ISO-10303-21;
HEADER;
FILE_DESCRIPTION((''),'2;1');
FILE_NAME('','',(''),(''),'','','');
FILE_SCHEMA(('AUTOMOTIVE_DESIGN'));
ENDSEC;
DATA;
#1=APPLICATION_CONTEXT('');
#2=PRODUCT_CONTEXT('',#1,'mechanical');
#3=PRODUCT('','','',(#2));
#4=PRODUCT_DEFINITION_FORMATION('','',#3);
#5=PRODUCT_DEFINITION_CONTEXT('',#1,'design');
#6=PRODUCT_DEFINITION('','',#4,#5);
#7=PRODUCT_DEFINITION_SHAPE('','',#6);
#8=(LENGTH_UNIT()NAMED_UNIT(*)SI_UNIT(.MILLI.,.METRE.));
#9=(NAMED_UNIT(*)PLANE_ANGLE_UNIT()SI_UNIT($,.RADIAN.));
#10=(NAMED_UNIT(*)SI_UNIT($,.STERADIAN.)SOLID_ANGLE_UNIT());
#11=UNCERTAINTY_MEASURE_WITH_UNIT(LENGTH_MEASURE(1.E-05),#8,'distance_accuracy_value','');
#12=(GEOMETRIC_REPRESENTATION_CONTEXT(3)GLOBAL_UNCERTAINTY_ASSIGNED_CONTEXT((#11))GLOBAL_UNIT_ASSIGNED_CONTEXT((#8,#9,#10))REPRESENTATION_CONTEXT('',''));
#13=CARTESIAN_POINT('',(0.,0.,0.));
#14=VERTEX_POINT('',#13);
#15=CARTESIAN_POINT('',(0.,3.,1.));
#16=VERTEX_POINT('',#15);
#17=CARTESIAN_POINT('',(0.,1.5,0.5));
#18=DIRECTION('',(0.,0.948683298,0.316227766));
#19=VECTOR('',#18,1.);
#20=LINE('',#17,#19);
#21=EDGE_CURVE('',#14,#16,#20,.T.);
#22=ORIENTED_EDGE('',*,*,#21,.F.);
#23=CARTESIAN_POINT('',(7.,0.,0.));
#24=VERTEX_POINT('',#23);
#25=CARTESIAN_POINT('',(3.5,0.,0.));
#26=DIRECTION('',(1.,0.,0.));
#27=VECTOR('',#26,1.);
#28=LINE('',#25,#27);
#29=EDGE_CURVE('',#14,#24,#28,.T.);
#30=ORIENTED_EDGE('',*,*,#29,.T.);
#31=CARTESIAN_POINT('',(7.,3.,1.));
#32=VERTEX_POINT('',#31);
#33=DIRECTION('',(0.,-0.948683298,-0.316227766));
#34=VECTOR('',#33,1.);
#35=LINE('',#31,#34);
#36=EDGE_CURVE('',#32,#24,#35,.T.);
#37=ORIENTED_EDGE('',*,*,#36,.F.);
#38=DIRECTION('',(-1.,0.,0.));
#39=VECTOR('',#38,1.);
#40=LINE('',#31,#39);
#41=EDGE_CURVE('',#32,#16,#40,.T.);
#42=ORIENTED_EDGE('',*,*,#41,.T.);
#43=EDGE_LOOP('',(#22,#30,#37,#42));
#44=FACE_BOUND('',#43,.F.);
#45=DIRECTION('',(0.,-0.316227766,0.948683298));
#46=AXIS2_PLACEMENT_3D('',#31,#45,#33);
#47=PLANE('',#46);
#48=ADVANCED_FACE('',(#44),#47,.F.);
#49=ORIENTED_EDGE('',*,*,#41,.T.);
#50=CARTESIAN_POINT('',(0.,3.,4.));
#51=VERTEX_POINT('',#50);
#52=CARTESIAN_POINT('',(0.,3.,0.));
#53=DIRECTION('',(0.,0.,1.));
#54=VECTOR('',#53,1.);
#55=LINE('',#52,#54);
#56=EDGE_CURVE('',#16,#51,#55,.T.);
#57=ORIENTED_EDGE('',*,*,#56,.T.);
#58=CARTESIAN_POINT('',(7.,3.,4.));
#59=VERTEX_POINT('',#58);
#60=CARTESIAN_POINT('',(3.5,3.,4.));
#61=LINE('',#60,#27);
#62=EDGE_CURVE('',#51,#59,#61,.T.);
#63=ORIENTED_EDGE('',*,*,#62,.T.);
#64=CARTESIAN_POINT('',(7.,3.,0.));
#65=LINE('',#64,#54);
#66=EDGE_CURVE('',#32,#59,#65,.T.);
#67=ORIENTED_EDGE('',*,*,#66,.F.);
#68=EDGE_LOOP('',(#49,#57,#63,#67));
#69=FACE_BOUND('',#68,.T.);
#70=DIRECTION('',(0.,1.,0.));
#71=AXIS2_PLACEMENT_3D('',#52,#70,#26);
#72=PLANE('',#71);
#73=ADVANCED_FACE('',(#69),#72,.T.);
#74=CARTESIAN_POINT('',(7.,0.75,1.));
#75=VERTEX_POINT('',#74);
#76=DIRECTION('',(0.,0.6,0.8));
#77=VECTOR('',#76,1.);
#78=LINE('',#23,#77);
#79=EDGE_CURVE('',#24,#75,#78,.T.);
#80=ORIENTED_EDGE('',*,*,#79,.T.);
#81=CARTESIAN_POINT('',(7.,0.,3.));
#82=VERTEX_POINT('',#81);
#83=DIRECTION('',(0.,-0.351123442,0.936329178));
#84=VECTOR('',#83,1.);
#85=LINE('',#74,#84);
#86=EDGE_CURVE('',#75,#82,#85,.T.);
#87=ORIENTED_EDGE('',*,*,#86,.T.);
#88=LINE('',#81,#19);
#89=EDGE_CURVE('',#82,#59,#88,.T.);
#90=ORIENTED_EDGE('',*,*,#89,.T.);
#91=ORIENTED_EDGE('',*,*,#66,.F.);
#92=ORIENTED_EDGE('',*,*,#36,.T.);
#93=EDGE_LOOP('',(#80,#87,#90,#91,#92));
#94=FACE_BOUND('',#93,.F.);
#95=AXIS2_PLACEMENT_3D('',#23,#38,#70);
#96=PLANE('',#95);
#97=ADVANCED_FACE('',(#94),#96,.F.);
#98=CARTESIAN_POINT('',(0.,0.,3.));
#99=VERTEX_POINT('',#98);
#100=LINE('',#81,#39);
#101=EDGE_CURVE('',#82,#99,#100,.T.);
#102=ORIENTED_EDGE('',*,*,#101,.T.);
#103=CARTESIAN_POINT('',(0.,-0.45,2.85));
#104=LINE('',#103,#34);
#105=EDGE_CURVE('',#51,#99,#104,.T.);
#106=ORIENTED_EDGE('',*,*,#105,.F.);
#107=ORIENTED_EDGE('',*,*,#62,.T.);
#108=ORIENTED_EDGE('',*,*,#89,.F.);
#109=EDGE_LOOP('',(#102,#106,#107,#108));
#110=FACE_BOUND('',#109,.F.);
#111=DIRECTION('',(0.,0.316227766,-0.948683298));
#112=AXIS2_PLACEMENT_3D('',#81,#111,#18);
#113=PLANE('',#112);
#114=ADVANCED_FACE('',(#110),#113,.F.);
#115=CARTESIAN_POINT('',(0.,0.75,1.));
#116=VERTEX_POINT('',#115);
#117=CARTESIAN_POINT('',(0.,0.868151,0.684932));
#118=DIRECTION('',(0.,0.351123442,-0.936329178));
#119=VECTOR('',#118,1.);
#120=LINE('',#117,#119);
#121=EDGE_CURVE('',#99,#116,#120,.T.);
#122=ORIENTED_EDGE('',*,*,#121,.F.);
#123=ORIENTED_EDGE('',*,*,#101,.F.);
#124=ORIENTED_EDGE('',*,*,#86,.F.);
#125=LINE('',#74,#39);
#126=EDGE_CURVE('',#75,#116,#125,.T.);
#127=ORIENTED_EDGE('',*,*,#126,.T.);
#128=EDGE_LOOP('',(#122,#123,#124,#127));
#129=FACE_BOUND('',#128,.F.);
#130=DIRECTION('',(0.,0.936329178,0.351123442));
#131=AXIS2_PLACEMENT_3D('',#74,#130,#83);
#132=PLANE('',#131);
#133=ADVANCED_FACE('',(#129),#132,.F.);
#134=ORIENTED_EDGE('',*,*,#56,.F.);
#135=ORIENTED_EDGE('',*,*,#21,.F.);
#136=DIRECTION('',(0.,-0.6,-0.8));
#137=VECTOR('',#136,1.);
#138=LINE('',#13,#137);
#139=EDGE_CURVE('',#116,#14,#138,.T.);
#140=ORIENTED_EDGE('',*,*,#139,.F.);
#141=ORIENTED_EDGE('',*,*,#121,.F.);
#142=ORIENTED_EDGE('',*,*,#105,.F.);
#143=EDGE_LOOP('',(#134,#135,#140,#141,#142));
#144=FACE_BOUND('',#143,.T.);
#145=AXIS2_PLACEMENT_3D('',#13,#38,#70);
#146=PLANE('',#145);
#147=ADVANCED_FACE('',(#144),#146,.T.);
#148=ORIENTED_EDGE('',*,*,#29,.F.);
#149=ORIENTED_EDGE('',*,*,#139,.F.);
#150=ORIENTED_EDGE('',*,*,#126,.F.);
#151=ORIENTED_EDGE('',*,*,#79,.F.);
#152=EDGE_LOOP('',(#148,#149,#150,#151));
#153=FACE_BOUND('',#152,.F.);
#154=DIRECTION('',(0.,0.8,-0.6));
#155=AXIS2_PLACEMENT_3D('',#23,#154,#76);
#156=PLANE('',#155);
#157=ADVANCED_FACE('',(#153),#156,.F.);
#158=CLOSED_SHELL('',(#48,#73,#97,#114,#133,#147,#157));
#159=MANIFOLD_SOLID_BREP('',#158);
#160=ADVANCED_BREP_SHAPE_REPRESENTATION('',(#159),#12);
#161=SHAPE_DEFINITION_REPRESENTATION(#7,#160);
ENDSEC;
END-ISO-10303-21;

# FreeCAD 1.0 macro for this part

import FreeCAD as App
import Part
import Sketcher


def add_polygon(sketch, points):
    """Adds a closed chain of lines whose ends are joined by coincident constraints."""
    first, n = sketch.GeometryCount, len(points)
    for a, b in zip(points, points[1:] + points[:1]):
        sketch.addGeometry(Part.LineSegment(App.Vector(*a, 0), App.Vector(*b, 0)), False)
    for i in range(n):
        sketch.addConstraint(Sketcher.Constraint("Coincident", first + i, 2, first + (i + 1) % n, 1))

doc = App.newDocument("Part")
body = doc.addObject("PartDesign::Body", "Body")

# Sketch on XY plane
sketch1 = body.newObject("Sketcher::SketchObject", "Sketch")
sketch1.AttachmentSupport = (doc.getObject("XY_Plane"), [""])
sketch1.MapMode = "FlatFace"
add_polygon(sketch1, [(0, 3), (0, 0), (7, 0), (7, 3)])  # lines 0-3
sketch1.addConstraint(Sketcher.Constraint("Vertical", 0))
sketch1.addConstraint(Sketcher.Constraint("Horizontal", 1))
sketch1.addConstraint(Sketcher.Constraint("Vertical", 2))
sketch1.addConstraint(Sketcher.Constraint("Horizontal", 3))
sketch1.addConstraint(Sketcher.Constraint("Coincident", 0, 2, -1, 1))
sketch1.addConstraint(Sketcher.Constraint("DistanceX", 1, 1, 1, 2, 7.0))
sketch1.addConstraint(Sketcher.Constraint("DistanceY", 0, 2, 0, 1, 3.0))
pad1 = body.newObject("PartDesign::Pad", "Pad")
pad1.Profile = sketch1
pad1.Length = 4

# Sketch on YZ plane
sketch2 = body.newObject("Sketcher::SketchObject", "Sketch001")
sketch2.AttachmentSupport = (doc.getObject("YZ_Plane"), [""])
sketch2.MapMode = "FlatFace"
sketch2.AttachmentOffset = App.Placement(App.Vector(0, 0, 7), App.Rotation())
add_polygon(sketch2, [(0, 4), (0, 3), (3, 4)])  # lines 0-2
add_polygon(sketch2, [(0, 3), (0, 0), (0.8, 1)])  # lines 3-5
add_polygon(sketch2, [(3, 1), (0, 0), (3, 0)])  # lines 6-8
sketch2.addConstraint(Sketcher.Constraint("Vertical", 0))
sketch2.addConstraint(Sketcher.Constraint("Horizontal", 2))
sketch2.addConstraint(Sketcher.Constraint("Vertical", 3))
sketch2.addConstraint(Sketcher.Constraint("Horizontal", 7))
sketch2.addConstraint(Sketcher.Constraint("Vertical", 8))
sketch2.addConstraint(Sketcher.Constraint("Coincident", 3, 2, -1, 1))
sketch2.addConstraint(Sketcher.Constraint("Coincident", 6, 2, -1, 1))
sketch2.addConstraint(Sketcher.Constraint("Coincident", 5, 2, 0, 2))
sketch2.addConstraint(Sketcher.Constraint("Parallel", 1, 6))
sketch2.addConstraint(Sketcher.Constraint("Horizontal", 4, 2, 8, 2))
sketch2.addConstraint(Sketcher.Constraint("Vertical", 1, 2, 7, 2))
sketch2.addConstraint(Sketcher.Constraint("Equal", 7, 3))
sketch2.addConstraint(Sketcher.Constraint("DistanceX", 2, 2, 2, 1, 3.0))
sketch2.addConstraint(Sketcher.Constraint("DistanceY", 0, 2, 0, 1, 1.0))
sketch2.addConstraint(Sketcher.Constraint("Distance", 4, 1.25))
pocket1 = body.newObject("PartDesign::Pocket", "Pocket")
pocket1.Profile = sketch2
pocket1.Length = 25

doc.recompute()
